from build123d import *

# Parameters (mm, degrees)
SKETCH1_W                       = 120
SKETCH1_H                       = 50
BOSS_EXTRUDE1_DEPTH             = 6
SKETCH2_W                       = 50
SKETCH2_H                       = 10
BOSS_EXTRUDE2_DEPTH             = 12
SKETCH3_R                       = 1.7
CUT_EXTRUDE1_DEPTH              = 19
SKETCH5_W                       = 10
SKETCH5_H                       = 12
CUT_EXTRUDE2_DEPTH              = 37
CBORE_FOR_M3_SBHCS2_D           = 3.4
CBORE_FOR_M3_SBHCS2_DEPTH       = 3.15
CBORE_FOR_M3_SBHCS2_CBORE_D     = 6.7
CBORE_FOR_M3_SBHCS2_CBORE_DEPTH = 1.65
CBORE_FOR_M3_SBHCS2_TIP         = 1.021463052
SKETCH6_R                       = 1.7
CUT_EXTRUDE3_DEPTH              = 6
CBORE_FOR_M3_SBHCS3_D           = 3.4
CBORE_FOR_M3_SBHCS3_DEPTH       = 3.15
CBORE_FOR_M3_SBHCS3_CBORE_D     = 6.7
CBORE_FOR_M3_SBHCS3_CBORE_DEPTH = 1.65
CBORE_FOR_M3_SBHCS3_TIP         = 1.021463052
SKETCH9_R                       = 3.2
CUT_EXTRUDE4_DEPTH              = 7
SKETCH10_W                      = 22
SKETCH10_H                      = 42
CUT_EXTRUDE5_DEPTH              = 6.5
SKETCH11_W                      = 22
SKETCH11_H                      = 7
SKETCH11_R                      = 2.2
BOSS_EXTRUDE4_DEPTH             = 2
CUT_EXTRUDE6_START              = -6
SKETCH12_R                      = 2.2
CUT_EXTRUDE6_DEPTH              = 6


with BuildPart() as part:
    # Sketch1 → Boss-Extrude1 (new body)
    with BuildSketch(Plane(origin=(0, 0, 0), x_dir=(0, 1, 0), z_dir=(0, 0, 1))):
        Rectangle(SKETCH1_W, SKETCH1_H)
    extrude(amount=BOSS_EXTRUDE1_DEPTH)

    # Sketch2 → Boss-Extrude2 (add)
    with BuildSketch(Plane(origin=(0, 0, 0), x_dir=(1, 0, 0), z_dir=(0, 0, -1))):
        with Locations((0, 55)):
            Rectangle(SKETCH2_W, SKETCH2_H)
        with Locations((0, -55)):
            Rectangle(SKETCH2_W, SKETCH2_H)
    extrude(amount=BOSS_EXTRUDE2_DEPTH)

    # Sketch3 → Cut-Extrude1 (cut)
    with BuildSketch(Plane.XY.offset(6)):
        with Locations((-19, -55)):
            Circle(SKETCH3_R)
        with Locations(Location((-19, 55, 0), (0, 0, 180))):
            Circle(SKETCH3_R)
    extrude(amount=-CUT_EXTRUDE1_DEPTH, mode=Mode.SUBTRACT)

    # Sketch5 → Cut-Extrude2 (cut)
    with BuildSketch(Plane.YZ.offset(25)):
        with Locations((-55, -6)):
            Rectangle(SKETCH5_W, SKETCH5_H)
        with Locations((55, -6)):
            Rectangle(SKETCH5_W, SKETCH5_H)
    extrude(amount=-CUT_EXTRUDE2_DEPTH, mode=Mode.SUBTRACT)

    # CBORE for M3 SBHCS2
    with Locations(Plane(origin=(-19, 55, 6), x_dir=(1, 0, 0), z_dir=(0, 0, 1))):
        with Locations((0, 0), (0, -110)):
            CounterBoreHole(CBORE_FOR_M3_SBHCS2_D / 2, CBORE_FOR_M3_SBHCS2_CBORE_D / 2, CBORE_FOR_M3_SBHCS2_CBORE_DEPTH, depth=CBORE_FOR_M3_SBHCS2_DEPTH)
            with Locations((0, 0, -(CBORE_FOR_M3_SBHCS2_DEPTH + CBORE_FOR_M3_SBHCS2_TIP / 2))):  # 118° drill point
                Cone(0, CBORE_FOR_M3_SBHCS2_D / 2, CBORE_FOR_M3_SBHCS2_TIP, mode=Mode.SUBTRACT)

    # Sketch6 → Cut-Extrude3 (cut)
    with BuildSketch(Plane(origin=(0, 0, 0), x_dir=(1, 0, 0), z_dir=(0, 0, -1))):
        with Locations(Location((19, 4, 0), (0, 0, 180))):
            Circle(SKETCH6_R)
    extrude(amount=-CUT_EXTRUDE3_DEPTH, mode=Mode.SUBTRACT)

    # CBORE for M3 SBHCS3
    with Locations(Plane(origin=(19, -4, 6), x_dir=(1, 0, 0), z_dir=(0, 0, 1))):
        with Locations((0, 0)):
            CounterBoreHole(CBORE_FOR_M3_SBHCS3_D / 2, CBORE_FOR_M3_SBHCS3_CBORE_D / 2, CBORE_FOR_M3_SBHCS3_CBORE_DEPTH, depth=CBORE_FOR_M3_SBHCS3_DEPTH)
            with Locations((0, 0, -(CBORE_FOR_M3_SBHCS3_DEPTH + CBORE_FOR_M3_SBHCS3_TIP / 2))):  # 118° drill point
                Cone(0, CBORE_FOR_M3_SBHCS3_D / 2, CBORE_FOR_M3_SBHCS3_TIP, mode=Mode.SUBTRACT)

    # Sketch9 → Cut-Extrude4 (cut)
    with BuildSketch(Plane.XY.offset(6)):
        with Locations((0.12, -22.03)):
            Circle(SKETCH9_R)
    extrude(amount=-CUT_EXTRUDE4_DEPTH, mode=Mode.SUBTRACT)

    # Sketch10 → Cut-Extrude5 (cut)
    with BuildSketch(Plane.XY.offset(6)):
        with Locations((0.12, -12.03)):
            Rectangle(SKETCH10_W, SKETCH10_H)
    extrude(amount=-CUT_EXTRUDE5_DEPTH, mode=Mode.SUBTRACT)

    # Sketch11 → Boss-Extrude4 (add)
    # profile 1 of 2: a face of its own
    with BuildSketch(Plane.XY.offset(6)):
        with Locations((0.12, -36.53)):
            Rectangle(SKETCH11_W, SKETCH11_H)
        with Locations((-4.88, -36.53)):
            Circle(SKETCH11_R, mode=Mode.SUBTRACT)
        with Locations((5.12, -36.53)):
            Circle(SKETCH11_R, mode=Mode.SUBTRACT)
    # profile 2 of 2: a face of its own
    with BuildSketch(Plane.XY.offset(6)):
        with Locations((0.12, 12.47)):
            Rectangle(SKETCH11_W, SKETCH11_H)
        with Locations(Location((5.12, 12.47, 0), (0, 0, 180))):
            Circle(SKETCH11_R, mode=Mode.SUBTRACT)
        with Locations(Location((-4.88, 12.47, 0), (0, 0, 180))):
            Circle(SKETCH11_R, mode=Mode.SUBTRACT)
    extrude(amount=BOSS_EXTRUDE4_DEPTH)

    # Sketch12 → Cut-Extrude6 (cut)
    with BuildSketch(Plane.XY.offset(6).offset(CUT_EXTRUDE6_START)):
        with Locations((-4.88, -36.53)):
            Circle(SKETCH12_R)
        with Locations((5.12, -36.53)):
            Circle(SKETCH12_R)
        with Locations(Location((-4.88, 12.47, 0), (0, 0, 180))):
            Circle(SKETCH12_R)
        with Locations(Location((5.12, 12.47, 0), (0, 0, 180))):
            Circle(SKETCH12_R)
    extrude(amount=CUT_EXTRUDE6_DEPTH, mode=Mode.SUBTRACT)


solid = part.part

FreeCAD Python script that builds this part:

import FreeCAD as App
import Part
import Sketcher


def add_polygon(sketch, points):
    """Adds a closed chain of lines whose ends are joined by coincident constraints."""
    first, n = sketch.GeometryCount, len(points)
    for a, b in zip(points, points[1:] + points[:1]):
        sketch.addGeometry(Part.LineSegment(App.Vector(*a, 0), App.Vector(*b, 0)), False)
    for i in range(n):
        sketch.addConstraint(Sketcher.Constraint("Coincident", first + i, 2, first + (i + 1) % n, 1))

doc = App.newDocument("Part")
body = doc.addObject("PartDesign::Body", "Body")

# Sketch on XY plane
sketch1 = body.newObject("Sketcher::SketchObject", "Sketch")
sketch1.AttachmentSupport = (doc.getObject("XY_Plane"), [""])
sketch1.MapMode = "FlatFace"
add_polygon(sketch1, [(-25, -60), (25, -60), (25, 60), (-25, 60)])  # lines 0-3
sketch1.addConstraint([
    Sketcher.Constraint("Horizontal", 0),
    Sketcher.Constraint("Vertical", 1),
    Sketcher.Constraint("Horizontal", 2),
    Sketcher.Constraint("Vertical", 3),
    Sketcher.Constraint("Symmetric", 0, 2, 2, 2, -1, 1),
    Sketcher.Constraint("DistanceX", 0, 1, 0, 2, 50.0),
    Sketcher.Constraint("DistanceY", 1, 1, 1, 2, 120.0),
])
pad1 = body.newObject("PartDesign::Pad", "Pad")
pad1.Profile = sketch1
pad1.Length = 6

# Sketch on XY plane
sketch2 = body.newObject("Sketcher::SketchObject", "Sketch001")
sketch2.AttachmentSupport = (doc.getObject("XY_Plane"), [""])
sketch2.MapMode = "FlatFace"
add_polygon(sketch2, [(-25, -60), (-25, -50), (25, -50), (25, -60)])  # lines 0-3
add_polygon(sketch2, [(-25, 50), (-25, 60), (25, 60), (25, 50)])  # lines 4-7
sketch2.addConstraint([
    Sketcher.Constraint("Vertical", 0),
    Sketcher.Constraint("Horizontal", 1),
    Sketcher.Constraint("Vertical", 2),
    Sketcher.Constraint("Horizontal", 3),
    Sketcher.Constraint("Vertical", 4),
    Sketcher.Constraint("Horizontal", 5),
    Sketcher.Constraint("Vertical", 6),
    Sketcher.Constraint("Horizontal", 7),
    Sketcher.Constraint("Symmetric", 2, 2, 4, 2, -1, 1),
    Sketcher.Constraint("Symmetric", 0, 2, 6, 2, -1, 1),
    Sketcher.Constraint("Vertical", 3, 2, 4, 2),
    Sketcher.Constraint("DistanceX", 1, 1, 1, 2, 50.0),
    Sketcher.Constraint("DistanceY", 0, 1, 0, 2, 10.0),
    Sketcher.Constraint("DistanceY", 0, 2, -1, 1, 50.0),
])
pad2 = body.newObject("PartDesign::Pad", "Pad001")
pad2.Profile = sketch2
pad2.Length = 12
pad2.Reversed = True

# Sketch on XY plane
sketch3 = body.newObject("Sketcher::SketchObject", "Sketch002")
sketch3.AttachmentSupport = (doc.getObject("XY_Plane"), [""])
sketch3.MapMode = "FlatFace"
sketch3.AttachmentOffset = App.Placement(App.Vector(0, 0, 6), App.Rotation())
sketch3.addGeometry([
    Part.Circle(App.Vector(-19, -55, 0), App.Vector(0, 0, 1), 1.7),
    Part.Circle(App.Vector(-19, 55, 0), App.Vector(0, 0, 1), 1.7),
], False)
sketch3.addConstraint([
    Sketcher.Constraint("Equal", 0, 1),
    Sketcher.Constraint("Symmetric", 0, 3, 1, 3, -1),
    Sketcher.Constraint("Diameter", 0, 3.4),
    Sketcher.Constraint("DistanceX", 0, 3, -1, 1, 19.0),
    Sketcher.Constraint("DistanceY", 0, 3, -1, 1, 55.0),
])
pocket1 = body.newObject("PartDesign::Pocket", "Pocket")
pocket1.Profile = sketch3
pocket1.Length = 19

# Sketch on YZ plane
sketch4 = body.newObject("Sketcher::SketchObject", "Sketch003")
sketch4.AttachmentSupport = (doc.getObject("YZ_Plane"), [""])
sketch4.MapMode = "FlatFace"
sketch4.AttachmentOffset = App.Placement(App.Vector(0, 0, 25), App.Rotation())
add_polygon(sketch4, [(-60, 0), (-60, -12), (-50, -12), (-50, 0)])  # lines 0-3
add_polygon(sketch4, [(50, 0), (50, -12), (60, -12), (60, 0)])  # lines 4-7
sketch4.addConstraint([
    Sketcher.Constraint("Vertical", 0),
    Sketcher.Constraint("Horizontal", 1),
    Sketcher.Constraint("Vertical", 2),
    Sketcher.Constraint("Horizontal", 3),
    Sketcher.Constraint("Vertical", 4),
    Sketcher.Constraint("Horizontal", 5),
    Sketcher.Constraint("Vertical", 6),
    Sketcher.Constraint("Horizontal", 7),
    Sketcher.Constraint("Symmetric", 3, 2, 6, 2, -1, 1),
    Sketcher.Constraint("Symmetric", 1, 2, 4, 2, -2),
    Sketcher.Constraint("PointOnObject", 2, 2, -1),
    Sketcher.Constraint("DistanceX", 1, 1, 1, 2, 10.0),
    Sketcher.Constraint("DistanceY", 0, 2, 0, 1, 12.0),
    Sketcher.Constraint("DistanceX", 0, 2, -1, 1, 60.0),
])
pocket2 = body.newObject("PartDesign::Pocket", "Pocket001")
pocket2.Profile = sketch4
pocket2.Length = 37

# Sketch on XY plane
sketch5 = body.newObject("Sketcher::SketchObject", "Sketch004")
sketch5.AttachmentSupport = (doc.getObject("XY_Plane"), [""])
sketch5.MapMode = "FlatFace"
sketch5.AttachmentOffset = App.Placement(App.Vector(0, 0, 6), App.Rotation())
sketch5.addGeometry([
    Part.Circle(App.Vector(-19, 55, 0), App.Vector(0, 0, 1), 1.7),
    Part.Circle(App.Vector(-19, -55, 0), App.Vector(0, 0, 1), 1.7),
], False)
sketch5.addConstraint([
    Sketcher.Constraint("Equal", 0, 1),
    Sketcher.Constraint("Symmetric", 0, 3, 1, 3, -1),
    Sketcher.Constraint("Diameter", 0, 3.4),
    Sketcher.Constraint("DistanceX", 0, 3, -1, 1, 19.0),
    Sketcher.Constraint("DistanceY", -1, 1, 0, 3, 55.0),
])
doc.recompute()
hole = body.newObject("PartDesign::Hole", "Hole")
hole.Profile = sketch5
hole.ThreadType = "None"
hole.Diameter = 3.4
hole.DepthType = "Dimension"
hole.Depth = 3.15
hole.DrillPoint = "Angled"
hole.DrillPointAngle = 118
hole.HoleCutType = "Counterbore"
hole.HoleCutDiameter = 6.7
hole.HoleCutDepth = 1.65

# Sketch on XY plane
sketch6 = body.newObject("Sketcher::SketchObject", "Sketch005")
sketch6.AttachmentSupport = (doc.getObject("XY_Plane"), [""])
sketch6.MapMode = "FlatFace"
sketch6.addGeometry(Part.Circle(App.Vector(19, -4, 0), App.Vector(0, 0, 1), 1.7), False)
sketch6.addConstraint([
    Sketcher.Constraint("Diameter", 0, 3.4),
    Sketcher.Constraint("DistanceX", -1, 1, 0, 3, 19.0),
    Sketcher.Constraint("DistanceY", 0, 3, -1, 1, 4.0),
])
pocket3 = body.newObject("PartDesign::Pocket", "Pocket002")
pocket3.Profile = sketch6
pocket3.Length = 6
pocket3.Reversed = True

# Sketch on XY plane
sketch7 = body.newObject("Sketcher::SketchObject", "Sketch006")
sketch7.AttachmentSupport = (doc.getObject("XY_Plane"), [""])
sketch7.MapMode = "FlatFace"
sketch7.AttachmentOffset = App.Placement(App.Vector(0, 0, 6), App.Rotation())
sketch7.addGeometry(Part.Circle(App.Vector(19, -4, 0), App.Vector(0, 0, 1), 1.7), False)
sketch7.addConstraint([
    Sketcher.Constraint("Diameter", 0, 3.4),
    Sketcher.Constraint("DistanceX", -1, 1, 0, 3, 19.0),
    Sketcher.Constraint("DistanceY", 0, 3, -1, 1, 4.0),
])
doc.recompute()
hole2 = body.newObject("PartDesign::Hole", "Hole001")
hole2.Profile = sketch7
hole2.ThreadType = "None"
hole2.Diameter = 3.4
hole2.DepthType = "Dimension"
hole2.Depth = 3.15
hole2.DrillPoint = "Angled"
hole2.DrillPointAngle = 118
hole2.HoleCutType = "Counterbore"
hole2.HoleCutDiameter = 6.7
hole2.HoleCutDepth = 1.65

# Sketch on XY plane
sketch8 = body.newObject("Sketcher::SketchObject", "Sketch007")
sketch8.AttachmentSupport = (doc.getObject("XY_Plane"), [""])
sketch8.MapMode = "FlatFace"
sketch8.AttachmentOffset = App.Placement(App.Vector(0, 0, 6), App.Rotation())
sketch8.addGeometry(Part.Circle(App.Vector(0.1, -22, 0), App.Vector(0, 0, 1), 3.2), False)
sketch8.addConstraint([
    Sketcher.Constraint("Diameter", 0, 6.4),
    Sketcher.Constraint("DistanceX", -1, 1, 0, 3, 0.12),
    Sketcher.Constraint("DistanceY", 0, 3, -1, 1, 22.03),
])
pocket4 = body.newObject("PartDesign::Pocket", "Pocket003")
pocket4.Profile = sketch8
pocket4.Length = 7

# Sketch on XY plane
sketch9 = body.newObject("Sketcher::SketchObject", "Sketch008")
sketch9.AttachmentSupport = (doc.getObject("XY_Plane"), [""])
sketch9.MapMode = "FlatFace"
sketch9.AttachmentOffset = App.Placement(App.Vector(0, 0, 6), App.Rotation())
add_polygon(sketch9, [(-11, 9), (-11, -33), (11, -33), (11, 9)])  # lines 0-3
sketch9.addConstraint([
    Sketcher.Constraint("Vertical", 0),
    Sketcher.Constraint("Horizontal", 1),
    Sketcher.Constraint("Vertical", 2),
    Sketcher.Constraint("Horizontal", 3),
    Sketcher.Constraint("DistanceX", 1, 1, 1, 2, 22.0),
    Sketcher.Constraint("DistanceY", 0, 2, 0, 1, 42.0),
    Sketcher.Constraint("DistanceX", 0, 2, -1, 1, 10.88),
    Sketcher.Constraint("DistanceY", 0, 2, -1, 1, 33.03),
])
pocket5 = body.newObject("PartDesign::Pocket", "Pocket004")
pocket5.Profile = sketch9
pocket5.Length = 6.5

# Sketch on XY plane
sketch10 = body.newObject("Sketcher::SketchObject", "Sketch009")
sketch10.AttachmentSupport = (doc.getObject("XY_Plane"), [""])
sketch10.MapMode = "FlatFace"
sketch10.AttachmentOffset = App.Placement(App.Vector(0, 0, 6), App.Rotation())
add_polygon(sketch10, [(-10.9, -33), (-10.9, -40), (11.1, -40), (11.1, -33)])  # lines 0-3
sketch10.addGeometry(Part.Circle(App.Vector(-4.9, -36.5, 0), App.Vector(0, 0, 1), 2.2), False)  # 4
sketch10.addGeometry(Part.Circle(App.Vector(5.1, -36.5, 0), App.Vector(0, 0, 1), 2.2), False)  # 5
add_polygon(sketch10, [(-10.9, 16), (-10.9, 9), (11.1, 9), (11.1, 16)])  # lines 6-9
sketch10.addGeometry(Part.Circle(App.Vector(-4.9, 12.5, 0), App.Vector(0, 0, 1), 2.2), False)  # 10
sketch10.addGeometry(Part.Circle(App.Vector(5.1, 12.5, 0), App.Vector(0, 0, 1), 2.2), False)  # 11
sketch10.addConstraint([
    Sketcher.Constraint("Vertical", 0),
    Sketcher.Constraint("Horizontal", 1),
    Sketcher.Constraint("Vertical", 2),
    Sketcher.Constraint("Horizontal", 3),
    Sketcher.Constraint("Vertical", 6),
    Sketcher.Constraint("Horizontal", 7),
    Sketcher.Constraint("Vertical", 8),
    Sketcher.Constraint("Horizontal", 9),
    Sketcher.Constraint("Equal", 4, 5),
    Sketcher.Constraint("Equal", 5, 10),
    Sketcher.Constraint("Equal", 10, 11),
    Sketcher.Constraint("Horizontal", 4, 3, 5, 3),
    Sketcher.Constraint("Horizontal", 10, 3, 11, 3),
    Sketcher.Constraint("Vertical", 4, 3, 10, 3),
    Sketcher.Constraint("Vertical", 5, 3, 11, 3),
    Sketcher.Constraint("Vertical", 3, 2, 6, 2),
    Sketcher.Constraint("Vertical", 2, 2, 7, 2),
    Sketcher.Constraint("Equal", 2, 6),
    Sketcher.Constraint("Diameter", 4, 4.4),
    Sketcher.Constraint("DistanceX", 1, 1, 1, 2, 22.0),
    Sketcher.Constraint("DistanceY", 0, 2, 0, 1, 7.0),
    Sketcher.Constraint("DistanceX", 4, 3, 5, 3, 10.0),
    Sketcher.Constraint("DistanceY", 4, 3, 10, 3, 49.0),
    Sketcher.Constraint("DistanceX", 0, 2, 4, 3, 6.0),
    Sketcher.Constraint("DistanceY", 3, 2, 6, 2, 42.0),
    Sketcher.Constraint("DistanceY", 0, 2, 4, 3, 3.5),
    Sketcher.Constraint("DistanceX", 4, 3, -1, 1, 4.88),
    Sketcher.Constraint("DistanceY", 4, 3, -1, 1, 36.53),
])
pad3 = body.newObject("PartDesign::Pad", "Pad002")
pad3.Profile = sketch10
pad3.Length = 2

# Sketch on XY plane
sketch11 = body.newObject("Sketcher::SketchObject", "Sketch010")
sketch11.AttachmentSupport = (doc.getObject("XY_Plane"), [""])
sketch11.MapMode = "FlatFace"
sketch11.addGeometry([
    Part.Circle(App.Vector(-4.9, -36.5, 0), App.Vector(0, 0, 1), 2.2),
    Part.Circle(App.Vector(5.1, -36.5, 0), App.Vector(0, 0, 1), 2.2),
    Part.Circle(App.Vector(-4.9, 12.5, 0), App.Vector(0, 0, 1), 2.2),
    Part.Circle(App.Vector(5.1, 12.5, 0), App.Vector(0, 0, 1), 2.2),
], False)
sketch11.addConstraint([
    Sketcher.Constraint("Equal", 0, 1),
    Sketcher.Constraint("Equal", 1, 2),
    Sketcher.Constraint("Equal", 2, 3),
    Sketcher.Constraint("Horizontal", 0, 3, 1, 3),
    Sketcher.Constraint("Horizontal", 2, 3, 3, 3),
    Sketcher.Constraint("Vertical", 0, 3, 2, 3),
    Sketcher.Constraint("Vertical", 1, 3, 3, 3),
    Sketcher.Constraint("Diameter", 0, 4.4),
    Sketcher.Constraint("DistanceX", 0, 3, 1, 3, 10.0),
    Sketcher.Constraint("DistanceY", 0, 3, 2, 3, 49.0),
    Sketcher.Constraint("DistanceX", 0, 3, -1, 1, 4.88),
    Sketcher.Constraint("DistanceY", 0, 3, -1, 1, 36.53),
])
pocket6 = body.newObject("PartDesign::Pocket", "Pocket005")
pocket6.Profile = sketch11
pocket6.Length = 6
pocket6.Reversed = True

doc.recompute()
